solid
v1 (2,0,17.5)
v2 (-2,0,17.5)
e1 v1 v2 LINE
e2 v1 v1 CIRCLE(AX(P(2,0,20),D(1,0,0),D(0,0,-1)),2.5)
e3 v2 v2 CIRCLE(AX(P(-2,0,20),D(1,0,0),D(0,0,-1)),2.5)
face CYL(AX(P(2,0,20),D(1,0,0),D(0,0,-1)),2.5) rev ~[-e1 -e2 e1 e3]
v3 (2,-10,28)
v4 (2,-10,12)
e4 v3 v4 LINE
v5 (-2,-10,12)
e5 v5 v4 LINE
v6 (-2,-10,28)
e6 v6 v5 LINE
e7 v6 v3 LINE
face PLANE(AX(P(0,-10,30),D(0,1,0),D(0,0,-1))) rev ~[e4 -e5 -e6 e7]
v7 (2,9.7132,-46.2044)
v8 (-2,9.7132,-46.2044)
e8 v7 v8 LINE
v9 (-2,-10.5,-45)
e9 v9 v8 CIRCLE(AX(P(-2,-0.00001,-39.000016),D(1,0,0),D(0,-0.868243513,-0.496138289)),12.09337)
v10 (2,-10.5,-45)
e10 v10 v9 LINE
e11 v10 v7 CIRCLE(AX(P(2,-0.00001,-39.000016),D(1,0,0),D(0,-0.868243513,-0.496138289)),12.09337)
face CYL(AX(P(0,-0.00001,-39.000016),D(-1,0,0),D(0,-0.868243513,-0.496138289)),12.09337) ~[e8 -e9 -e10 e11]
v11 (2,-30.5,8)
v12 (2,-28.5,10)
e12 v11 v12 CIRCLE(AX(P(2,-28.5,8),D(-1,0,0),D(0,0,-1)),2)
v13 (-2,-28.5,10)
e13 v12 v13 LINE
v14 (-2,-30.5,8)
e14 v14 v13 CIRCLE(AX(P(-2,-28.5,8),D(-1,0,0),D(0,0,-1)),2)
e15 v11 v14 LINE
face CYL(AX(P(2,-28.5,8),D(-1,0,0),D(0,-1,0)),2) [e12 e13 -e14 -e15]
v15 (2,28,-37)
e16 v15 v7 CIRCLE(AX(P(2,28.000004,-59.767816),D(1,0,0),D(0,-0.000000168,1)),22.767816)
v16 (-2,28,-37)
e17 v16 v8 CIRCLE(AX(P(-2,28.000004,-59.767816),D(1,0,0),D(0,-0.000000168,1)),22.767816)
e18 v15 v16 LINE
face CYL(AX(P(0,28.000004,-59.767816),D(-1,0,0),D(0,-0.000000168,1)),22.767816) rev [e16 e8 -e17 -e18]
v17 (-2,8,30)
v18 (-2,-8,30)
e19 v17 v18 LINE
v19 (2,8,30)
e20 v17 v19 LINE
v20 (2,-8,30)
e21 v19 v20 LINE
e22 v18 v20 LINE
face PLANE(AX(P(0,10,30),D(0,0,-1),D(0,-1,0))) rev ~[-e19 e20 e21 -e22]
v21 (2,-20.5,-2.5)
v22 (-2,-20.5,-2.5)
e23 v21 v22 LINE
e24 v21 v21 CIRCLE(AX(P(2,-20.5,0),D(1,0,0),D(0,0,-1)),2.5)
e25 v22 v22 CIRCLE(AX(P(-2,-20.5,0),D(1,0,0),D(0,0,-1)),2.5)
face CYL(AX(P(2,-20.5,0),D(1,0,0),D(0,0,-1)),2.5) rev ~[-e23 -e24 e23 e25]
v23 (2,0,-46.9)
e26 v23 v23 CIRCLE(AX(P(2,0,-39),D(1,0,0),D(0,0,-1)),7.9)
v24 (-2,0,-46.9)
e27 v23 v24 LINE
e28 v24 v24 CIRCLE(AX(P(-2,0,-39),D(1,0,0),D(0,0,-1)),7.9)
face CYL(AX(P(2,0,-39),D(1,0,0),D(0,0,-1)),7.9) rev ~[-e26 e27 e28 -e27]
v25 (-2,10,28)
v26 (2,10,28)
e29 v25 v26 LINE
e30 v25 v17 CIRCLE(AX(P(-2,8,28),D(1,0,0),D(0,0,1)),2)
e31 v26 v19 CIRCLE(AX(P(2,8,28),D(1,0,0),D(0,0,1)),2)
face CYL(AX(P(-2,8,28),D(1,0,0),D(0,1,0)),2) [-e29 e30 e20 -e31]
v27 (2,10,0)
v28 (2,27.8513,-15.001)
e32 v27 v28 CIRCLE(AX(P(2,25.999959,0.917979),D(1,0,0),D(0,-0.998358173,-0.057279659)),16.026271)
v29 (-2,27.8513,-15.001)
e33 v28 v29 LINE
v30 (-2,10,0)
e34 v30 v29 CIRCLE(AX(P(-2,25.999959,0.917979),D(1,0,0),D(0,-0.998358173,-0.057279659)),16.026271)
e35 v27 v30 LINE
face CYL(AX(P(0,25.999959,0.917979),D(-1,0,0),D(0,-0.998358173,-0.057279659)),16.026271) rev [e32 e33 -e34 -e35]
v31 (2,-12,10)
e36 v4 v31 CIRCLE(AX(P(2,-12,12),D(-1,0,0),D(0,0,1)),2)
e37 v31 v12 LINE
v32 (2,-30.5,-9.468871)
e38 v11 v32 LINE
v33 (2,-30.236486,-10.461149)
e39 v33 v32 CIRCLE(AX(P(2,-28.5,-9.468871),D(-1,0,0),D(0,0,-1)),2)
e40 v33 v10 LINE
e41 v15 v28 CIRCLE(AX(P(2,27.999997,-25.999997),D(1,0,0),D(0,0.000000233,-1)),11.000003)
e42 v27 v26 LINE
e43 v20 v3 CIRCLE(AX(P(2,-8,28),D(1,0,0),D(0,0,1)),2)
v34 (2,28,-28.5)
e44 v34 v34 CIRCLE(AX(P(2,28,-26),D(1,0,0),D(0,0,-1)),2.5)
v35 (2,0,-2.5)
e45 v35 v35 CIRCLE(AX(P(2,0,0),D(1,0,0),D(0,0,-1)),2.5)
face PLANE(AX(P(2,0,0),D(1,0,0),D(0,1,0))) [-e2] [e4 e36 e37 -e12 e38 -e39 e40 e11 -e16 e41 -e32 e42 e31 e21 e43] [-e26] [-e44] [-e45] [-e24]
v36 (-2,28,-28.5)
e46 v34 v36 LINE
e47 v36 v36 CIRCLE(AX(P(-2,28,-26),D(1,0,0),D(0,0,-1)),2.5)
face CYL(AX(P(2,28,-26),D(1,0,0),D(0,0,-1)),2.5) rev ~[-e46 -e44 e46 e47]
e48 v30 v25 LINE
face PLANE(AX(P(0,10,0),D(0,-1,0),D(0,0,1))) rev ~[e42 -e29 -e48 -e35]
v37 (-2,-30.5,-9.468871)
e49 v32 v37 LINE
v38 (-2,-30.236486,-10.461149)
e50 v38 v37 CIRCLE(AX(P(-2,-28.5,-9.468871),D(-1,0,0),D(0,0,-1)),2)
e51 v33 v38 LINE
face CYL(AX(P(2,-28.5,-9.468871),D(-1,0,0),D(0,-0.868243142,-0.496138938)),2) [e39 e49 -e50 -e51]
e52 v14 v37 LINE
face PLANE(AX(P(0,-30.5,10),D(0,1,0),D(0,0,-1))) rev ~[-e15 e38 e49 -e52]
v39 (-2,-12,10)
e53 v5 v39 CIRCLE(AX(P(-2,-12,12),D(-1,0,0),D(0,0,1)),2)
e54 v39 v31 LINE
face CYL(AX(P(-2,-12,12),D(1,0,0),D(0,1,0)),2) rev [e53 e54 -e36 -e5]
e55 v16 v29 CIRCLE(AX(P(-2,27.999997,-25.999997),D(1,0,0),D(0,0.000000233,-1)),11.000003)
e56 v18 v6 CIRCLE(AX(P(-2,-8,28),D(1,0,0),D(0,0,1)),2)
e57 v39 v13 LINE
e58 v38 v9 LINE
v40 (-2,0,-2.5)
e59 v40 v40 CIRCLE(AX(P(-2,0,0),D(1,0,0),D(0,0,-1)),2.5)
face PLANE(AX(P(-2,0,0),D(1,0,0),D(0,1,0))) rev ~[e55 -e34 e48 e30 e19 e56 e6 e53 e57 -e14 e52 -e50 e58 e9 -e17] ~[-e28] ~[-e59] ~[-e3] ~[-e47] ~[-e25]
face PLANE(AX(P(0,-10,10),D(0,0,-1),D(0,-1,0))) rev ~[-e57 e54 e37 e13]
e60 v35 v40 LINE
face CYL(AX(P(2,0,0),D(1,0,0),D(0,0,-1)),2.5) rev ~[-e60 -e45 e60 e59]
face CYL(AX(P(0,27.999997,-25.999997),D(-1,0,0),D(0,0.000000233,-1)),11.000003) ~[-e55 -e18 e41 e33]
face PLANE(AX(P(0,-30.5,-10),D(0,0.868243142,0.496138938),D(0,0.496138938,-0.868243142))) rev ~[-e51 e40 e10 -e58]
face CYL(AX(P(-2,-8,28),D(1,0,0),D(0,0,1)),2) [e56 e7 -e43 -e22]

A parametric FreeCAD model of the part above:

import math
import FreeCAD as App
import Part
import Sketcher

V = App.Vector
Q = App.Units.Quantity


def edges_at(feature, points):
    """Names of the edges that pass closest to the given points."""
    edges = feature.Shape.Edges
    near = lambda p: min(range(len(edges)), key=lambda i: edges[i].distToShape(Part.Vertex(*p))[0])
    return sorted({f"Edge{near(p) + 1}" for p in points})

doc = App.newDocument("Part")
body = doc.addObject("PartDesign::Body", "Body")

sketch1 = body.newObject("Sketcher::SketchObject", "Sketch")
sketch1.AttachmentSupport = (doc.getObject("YZ_Plane"), [""])
sketch1.MapMode = "FlatFace"
sketch1.addGeometry(Part.LineSegment(V(10, 0, 0), V(10, 30, 0)), False)
sketch1.addGeometry(Part.LineSegment(V(10, 30, 0), V(-10, 30, 0)), False)
sketch1.addGeometry(Part.LineSegment(V(-10, 30, 0), V(-10, 10, 0)), False)
sketch1.addGeometry(Part.LineSegment(V(-10, 10, 0), V(-30.5, 10, 0)), False)
sketch1.addGeometry(Part.LineSegment(V(-30.5, 10, 0), V(-30.5, -10, 0)), False)
sketch1.addGeometry(Part.LineSegment(V(-30.5, -10, 0), V(-10.5, -45, 0)), False)
sketch1.addGeometry(Part.ArcOfCircle(Part.Circle(V(0, -39, 0), V(0, 0, 1), 12.093387), math.radians(-150.255119), math.radians(-36.564783)), False)
sketch1.addGeometry(Part.ArcOfCircle(Part.Circle(V(28, -59.7678, 0), V(0, 0, 1), 22.7678), math.radians(90), math.radians(143.435509)), False)
sketch1.addGeometry(Part.ArcOfCircle(Part.Circle(V(28, -26, 0), V(0, 0, 1), 11), math.radians(-90), math.radians(90.774558)), False)
sketch1.addGeometry(Part.ArcOfCircle(Part.Circle(V(26, 0.918, 0), V(0, 0, 1), 16.026313), math.radians(-176.716255), math.radians(-83.366585)), False)
sketch1.addConstraint(Sketcher.Constraint("Coincident", 0, 2, 1, 1))
sketch1.addConstraint(Sketcher.Constraint("Coincident", 1, 2, 2, 1))
sketch1.addConstraint(Sketcher.Constraint("Coincident", 2, 2, 3, 1))
sketch1.addConstraint(Sketcher.Constraint("Coincident", 3, 2, 4, 1))
sketch1.addConstraint(Sketcher.Constraint("Coincident", 4, 2, 5, 1))
sketch1.addConstraint(Sketcher.Constraint("Tangent", 5, 2, 6, 1))
sketch1.addConstraint(Sketcher.Constraint("Tangent", 6, 2, 7, 2))
sketch1.addConstraint(Sketcher.Constraint("Tangent", 7, 1, 8, 1))
sketch1.addConstraint(Sketcher.Constraint("Coincident", 8, 2, 9, 2))
sketch1.addConstraint(Sketcher.Constraint("Coincident", 9, 1, 0, 1))
sketch1.addConstraint(Sketcher.Constraint("Vertical", 0))
sketch1.addConstraint(Sketcher.Constraint("Horizontal", 1))
sketch1.addConstraint(Sketcher.Constraint("Vertical", 2))
sketch1.addConstraint(Sketcher.Constraint("Horizontal", 3))
sketch1.addConstraint(Sketcher.Constraint("Vertical", 4))
sketch1.addConstraint(Sketcher.Constraint("PointOnObject", 6, 3, -2))
sketch1.addConstraint(Sketcher.Constraint("PointOnObject", 9, 1, -1))
sketch1.addConstraint(Sketcher.Constraint("Vertical", 7, 3, 8, 3))
sketch1.addConstraint(Sketcher.Constraint("Equal", 1, 2))
sketch1.addConstraint(Sketcher.Constraint("Equal", 2, 4))
sketch1.addConstraint(Sketcher.Constraint("Radius", 8, Q("11 mm")))
sketch1.addConstraint(Sketcher.Constraint("DistanceX", 1, 2, 1, 1, Q("20 mm")))
sketch1.addConstraint(Sketcher.Constraint("DistanceY", 6, 3, -1, 1, Q("39 mm")))
sketch1.addConstraint(Sketcher.Constraint("DistanceY", 8, 3, -1, 1, Q("26 mm")))
sketch1.addConstraint(Sketcher.Constraint("DistanceX", -1, 1, 9, 3, Q("26 mm")))
sketch1.addConstraint(Sketcher.Constraint("DistanceX", -1, 1, 0, 2, Q("10 mm")))
sketch1.addConstraint(Sketcher.Constraint("DistanceY", -1, 1, 2, 2, Q("10 mm")))
sketch1.addConstraint(Sketcher.Constraint("DistanceY", 5, 2, -1, 1, Q("45 mm")))
sketch1.addConstraint(Sketcher.Constraint("DistanceX", 0, 2, 8, 3, Q("18 mm")))
sketch1.addConstraint(Sketcher.Constraint("DistanceX", 4, 2, 5, 2, Q("20 mm")))
sketch1.addConstraint(Sketcher.Constraint("DistanceY", -1, 1, 9, 3, Q("0.918 mm")))
pad1 = body.newObject("PartDesign::Pad", "Pad")
pad1.Profile = sketch1
pad1.Length = 4
pad1.Midplane = True
doc.recompute()

fillet = body.newObject("PartDesign::Fillet", "Fillet")
fillet.Base = (pad1, edges_at(pad1, [
    (0, 10, 30),
    (0, -10, 30),
    (0, -10, 10),
    (0, -30.5, 10),
    (0, -30.5, -10),
]))
fillet.Radius = 2

sketch2 = body.newObject("Sketcher::SketchObject", "Sketch001")
sketch2.AttachmentSupport = (doc.getObject("YZ_Plane"), [""])
sketch2.MapMode = "FlatFace"
sketch2.AttachmentOffset = App.Placement(V(0, 0, 2), App.Rotation())
sketch2.addGeometry(Part.Circle(V(0, 20, 0), V(0, 0, 1), 2.5), False)
sketch2.addGeometry(Part.Circle(V(0, 0, 0), V(0, 0, 1), 2.5), False)
sketch2.addGeometry(Part.Circle(V(-20.5, 0, 0), V(0, 0, 1), 2.5), False)
sketch2.addGeometry(Part.Circle(V(0, -39, 0), V(0, 0, 1), 7.9), False)
sketch2.addGeometry(Part.Circle(V(28, -26, 0), V(0, 0, 1), 2.5), False)
sketch2.addConstraint(Sketcher.Constraint("Coincident", 1, 3, -1, 1))
sketch2.addConstraint(Sketcher.Constraint("Equal", 0, 1))
sketch2.addConstraint(Sketcher.Constraint("Equal", 1, 2))
sketch2.addConstraint(Sketcher.Constraint("Equal", 2, 4))
sketch2.addConstraint(Sketcher.Constraint("PointOnObject", 0, 3, -2))
sketch2.addConstraint(Sketcher.Constraint("PointOnObject", 2, 3, -1))
sketch2.addConstraint(Sketcher.Constraint("PointOnObject", 3, 3, -2))
sketch2.addConstraint(Sketcher.Constraint("Diameter", 0, Q("5 mm")))
sketch2.addConstraint(Sketcher.Constraint("Diameter", 3, Q("15.8 mm")))
sketch2.addConstraint(Sketcher.Constraint("DistanceY", -1, 1, 0, 3, Q("20 mm")))
sketch2.addConstraint(Sketcher.Constraint("DistanceY", 3, 3, -1, 1, Q("39 mm")))
sketch2.addConstraint(Sketcher.Constraint("DistanceX", -1, 1, 4, 3, Q("28 mm")))
sketch2.addConstraint(Sketcher.Constraint("DistanceY", 4, 3, -1, 1, Q("26 mm")))
sketch2.addConstraint(Sketcher.Constraint("DistanceX", 2, 3, -1, 1, Q("20.5 mm")))
pocket1 = body.newObject("PartDesign::Pocket", "Pocket")
pocket1.Profile = sketch2
pocket1.Type = "ThroughAll"

doc.recompute()
